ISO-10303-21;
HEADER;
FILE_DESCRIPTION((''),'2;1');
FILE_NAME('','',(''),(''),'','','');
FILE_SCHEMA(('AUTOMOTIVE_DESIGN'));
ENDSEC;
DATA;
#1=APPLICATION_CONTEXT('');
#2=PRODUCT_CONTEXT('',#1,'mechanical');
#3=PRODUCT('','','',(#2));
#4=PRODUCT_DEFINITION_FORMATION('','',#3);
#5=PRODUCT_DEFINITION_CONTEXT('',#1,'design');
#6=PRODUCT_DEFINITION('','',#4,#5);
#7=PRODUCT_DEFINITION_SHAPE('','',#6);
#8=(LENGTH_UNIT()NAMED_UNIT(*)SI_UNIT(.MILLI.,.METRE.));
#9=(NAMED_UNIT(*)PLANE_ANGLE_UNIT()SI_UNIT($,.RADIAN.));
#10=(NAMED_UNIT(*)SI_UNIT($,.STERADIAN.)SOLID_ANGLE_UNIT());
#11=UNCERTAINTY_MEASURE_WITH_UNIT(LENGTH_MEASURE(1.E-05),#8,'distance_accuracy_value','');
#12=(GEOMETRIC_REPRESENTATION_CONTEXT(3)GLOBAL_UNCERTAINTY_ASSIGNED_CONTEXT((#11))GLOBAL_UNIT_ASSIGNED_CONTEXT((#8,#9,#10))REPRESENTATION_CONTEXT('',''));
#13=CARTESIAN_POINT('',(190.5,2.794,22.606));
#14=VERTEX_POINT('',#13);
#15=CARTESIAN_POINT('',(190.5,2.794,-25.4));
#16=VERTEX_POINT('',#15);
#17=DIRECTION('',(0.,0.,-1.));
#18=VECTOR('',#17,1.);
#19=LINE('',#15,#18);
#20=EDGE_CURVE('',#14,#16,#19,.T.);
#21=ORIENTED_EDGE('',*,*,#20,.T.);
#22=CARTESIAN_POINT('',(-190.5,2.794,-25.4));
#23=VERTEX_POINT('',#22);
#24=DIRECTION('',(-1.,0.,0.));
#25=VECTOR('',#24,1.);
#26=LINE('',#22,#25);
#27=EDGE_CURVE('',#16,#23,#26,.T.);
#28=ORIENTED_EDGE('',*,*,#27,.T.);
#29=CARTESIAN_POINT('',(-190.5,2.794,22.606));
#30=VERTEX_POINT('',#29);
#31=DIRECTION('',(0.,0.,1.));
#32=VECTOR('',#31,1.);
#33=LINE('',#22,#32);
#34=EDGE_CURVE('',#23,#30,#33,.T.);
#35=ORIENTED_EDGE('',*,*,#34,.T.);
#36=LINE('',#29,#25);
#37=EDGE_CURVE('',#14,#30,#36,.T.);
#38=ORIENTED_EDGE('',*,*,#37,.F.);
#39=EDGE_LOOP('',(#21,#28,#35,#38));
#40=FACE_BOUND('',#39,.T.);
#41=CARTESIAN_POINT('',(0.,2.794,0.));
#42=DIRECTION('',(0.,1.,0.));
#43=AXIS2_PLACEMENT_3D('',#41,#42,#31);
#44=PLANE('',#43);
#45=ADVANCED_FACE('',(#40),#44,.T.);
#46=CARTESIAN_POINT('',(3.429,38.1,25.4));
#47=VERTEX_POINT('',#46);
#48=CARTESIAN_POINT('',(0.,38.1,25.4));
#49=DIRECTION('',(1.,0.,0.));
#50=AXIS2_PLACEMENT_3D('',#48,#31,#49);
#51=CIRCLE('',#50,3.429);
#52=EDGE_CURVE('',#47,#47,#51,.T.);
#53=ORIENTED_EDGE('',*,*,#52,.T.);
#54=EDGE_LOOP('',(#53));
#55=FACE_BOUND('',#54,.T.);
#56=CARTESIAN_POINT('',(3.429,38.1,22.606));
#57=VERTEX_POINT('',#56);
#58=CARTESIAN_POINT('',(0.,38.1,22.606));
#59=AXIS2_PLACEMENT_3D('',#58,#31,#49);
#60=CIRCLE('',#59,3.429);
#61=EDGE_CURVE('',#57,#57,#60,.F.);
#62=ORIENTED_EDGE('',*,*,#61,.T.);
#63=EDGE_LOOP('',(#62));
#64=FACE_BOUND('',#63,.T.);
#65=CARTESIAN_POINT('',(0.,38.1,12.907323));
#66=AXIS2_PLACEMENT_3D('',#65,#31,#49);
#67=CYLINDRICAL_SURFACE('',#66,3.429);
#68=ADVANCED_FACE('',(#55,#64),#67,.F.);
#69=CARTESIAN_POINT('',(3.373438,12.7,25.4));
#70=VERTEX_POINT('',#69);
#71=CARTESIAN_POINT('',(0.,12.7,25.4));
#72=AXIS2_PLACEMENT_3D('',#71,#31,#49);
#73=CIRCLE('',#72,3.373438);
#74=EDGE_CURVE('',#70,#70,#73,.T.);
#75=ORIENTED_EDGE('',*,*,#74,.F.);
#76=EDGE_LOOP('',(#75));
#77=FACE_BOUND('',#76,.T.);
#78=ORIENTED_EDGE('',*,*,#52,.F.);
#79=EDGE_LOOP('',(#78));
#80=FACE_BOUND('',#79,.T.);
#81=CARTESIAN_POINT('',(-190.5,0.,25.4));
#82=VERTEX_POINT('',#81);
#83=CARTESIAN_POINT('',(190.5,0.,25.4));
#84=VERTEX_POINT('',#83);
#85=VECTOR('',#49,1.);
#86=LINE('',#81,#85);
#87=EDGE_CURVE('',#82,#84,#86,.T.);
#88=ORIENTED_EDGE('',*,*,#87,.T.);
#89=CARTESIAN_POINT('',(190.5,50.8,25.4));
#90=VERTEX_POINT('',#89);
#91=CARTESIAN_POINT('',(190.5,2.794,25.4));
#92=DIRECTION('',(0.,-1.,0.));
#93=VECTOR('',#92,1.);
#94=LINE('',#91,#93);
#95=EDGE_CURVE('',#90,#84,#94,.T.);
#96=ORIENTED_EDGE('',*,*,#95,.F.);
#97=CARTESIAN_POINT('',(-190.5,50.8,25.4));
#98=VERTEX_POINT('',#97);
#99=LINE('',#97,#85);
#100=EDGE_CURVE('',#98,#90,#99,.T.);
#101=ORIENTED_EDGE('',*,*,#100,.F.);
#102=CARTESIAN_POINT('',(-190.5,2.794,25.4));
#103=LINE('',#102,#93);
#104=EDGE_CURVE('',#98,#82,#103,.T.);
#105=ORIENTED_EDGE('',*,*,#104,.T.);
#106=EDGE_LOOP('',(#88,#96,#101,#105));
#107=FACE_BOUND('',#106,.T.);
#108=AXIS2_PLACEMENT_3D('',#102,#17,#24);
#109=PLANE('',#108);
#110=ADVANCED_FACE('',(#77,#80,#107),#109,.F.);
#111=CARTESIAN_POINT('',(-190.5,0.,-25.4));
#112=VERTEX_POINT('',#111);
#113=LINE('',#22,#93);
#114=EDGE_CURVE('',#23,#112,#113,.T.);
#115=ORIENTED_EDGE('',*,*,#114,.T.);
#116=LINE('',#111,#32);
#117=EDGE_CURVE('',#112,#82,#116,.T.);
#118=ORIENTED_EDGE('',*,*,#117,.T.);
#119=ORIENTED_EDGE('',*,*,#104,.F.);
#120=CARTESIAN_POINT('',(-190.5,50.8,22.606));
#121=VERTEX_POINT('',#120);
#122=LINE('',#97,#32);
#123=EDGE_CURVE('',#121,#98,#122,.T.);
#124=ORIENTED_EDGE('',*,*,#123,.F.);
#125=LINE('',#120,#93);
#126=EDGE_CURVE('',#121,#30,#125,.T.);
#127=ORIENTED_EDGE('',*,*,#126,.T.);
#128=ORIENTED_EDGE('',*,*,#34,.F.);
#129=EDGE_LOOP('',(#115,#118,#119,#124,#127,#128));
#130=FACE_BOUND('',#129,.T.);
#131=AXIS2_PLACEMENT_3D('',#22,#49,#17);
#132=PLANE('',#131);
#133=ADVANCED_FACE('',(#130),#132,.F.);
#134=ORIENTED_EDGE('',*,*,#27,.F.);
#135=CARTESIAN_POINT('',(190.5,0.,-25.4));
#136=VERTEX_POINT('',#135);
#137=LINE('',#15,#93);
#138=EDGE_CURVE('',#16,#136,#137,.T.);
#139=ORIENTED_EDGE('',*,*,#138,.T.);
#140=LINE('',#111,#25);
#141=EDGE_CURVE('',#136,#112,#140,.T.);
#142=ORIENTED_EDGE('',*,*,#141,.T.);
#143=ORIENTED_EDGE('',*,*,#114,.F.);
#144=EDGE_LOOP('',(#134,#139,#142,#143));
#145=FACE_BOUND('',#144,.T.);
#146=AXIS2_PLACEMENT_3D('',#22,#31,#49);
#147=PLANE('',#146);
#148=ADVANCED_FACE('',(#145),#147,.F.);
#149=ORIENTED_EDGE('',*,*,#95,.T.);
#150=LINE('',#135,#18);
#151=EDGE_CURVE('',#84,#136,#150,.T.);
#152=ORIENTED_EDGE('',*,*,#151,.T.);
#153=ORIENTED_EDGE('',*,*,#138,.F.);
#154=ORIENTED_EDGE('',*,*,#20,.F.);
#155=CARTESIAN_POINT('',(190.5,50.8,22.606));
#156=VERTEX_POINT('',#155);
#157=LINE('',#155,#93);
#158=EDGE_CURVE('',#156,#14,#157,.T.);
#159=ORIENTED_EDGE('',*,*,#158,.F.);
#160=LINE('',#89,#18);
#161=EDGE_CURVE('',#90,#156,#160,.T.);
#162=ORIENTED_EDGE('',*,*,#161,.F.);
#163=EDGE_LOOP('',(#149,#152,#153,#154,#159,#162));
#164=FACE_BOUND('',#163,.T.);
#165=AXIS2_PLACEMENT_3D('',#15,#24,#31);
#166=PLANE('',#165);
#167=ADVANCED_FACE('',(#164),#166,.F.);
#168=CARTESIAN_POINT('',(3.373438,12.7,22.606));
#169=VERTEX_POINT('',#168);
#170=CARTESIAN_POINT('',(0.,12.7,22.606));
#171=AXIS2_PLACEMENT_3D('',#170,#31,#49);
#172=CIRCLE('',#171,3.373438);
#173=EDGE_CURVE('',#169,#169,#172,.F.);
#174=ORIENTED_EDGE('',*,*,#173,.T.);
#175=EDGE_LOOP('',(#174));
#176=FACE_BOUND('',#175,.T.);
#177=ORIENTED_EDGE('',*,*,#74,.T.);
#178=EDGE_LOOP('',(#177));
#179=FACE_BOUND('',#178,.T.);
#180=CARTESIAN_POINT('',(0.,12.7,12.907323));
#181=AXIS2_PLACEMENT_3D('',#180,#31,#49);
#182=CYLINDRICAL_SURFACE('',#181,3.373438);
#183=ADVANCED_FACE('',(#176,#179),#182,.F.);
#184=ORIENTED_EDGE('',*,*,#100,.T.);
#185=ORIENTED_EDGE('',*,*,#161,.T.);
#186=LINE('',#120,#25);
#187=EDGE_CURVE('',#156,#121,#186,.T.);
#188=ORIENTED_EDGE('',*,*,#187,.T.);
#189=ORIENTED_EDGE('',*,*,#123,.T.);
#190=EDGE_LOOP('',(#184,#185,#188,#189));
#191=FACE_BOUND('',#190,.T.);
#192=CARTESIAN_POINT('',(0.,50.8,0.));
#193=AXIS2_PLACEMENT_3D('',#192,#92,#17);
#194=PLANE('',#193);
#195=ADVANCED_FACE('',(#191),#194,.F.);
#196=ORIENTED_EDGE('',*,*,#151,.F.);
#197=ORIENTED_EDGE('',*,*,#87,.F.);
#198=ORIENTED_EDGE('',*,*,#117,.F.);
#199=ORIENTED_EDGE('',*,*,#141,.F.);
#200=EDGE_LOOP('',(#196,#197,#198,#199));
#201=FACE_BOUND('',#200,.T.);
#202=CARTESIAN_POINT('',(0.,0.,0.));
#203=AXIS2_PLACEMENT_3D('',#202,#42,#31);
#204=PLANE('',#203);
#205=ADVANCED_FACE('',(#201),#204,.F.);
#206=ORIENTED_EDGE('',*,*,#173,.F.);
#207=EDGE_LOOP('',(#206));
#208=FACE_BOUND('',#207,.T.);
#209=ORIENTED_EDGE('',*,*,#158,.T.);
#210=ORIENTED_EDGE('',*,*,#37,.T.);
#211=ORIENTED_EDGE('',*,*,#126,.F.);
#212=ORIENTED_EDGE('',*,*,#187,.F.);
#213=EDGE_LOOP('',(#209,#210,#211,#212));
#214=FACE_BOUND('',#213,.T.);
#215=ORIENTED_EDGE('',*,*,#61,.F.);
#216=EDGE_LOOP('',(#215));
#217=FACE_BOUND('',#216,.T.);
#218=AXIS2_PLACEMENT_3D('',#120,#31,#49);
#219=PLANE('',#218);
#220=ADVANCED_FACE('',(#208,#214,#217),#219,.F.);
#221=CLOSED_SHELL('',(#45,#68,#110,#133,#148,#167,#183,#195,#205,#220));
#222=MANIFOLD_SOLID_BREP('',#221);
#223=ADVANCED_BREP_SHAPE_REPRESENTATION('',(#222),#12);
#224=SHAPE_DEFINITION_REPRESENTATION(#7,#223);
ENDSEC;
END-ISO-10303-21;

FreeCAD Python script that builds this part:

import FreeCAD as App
import Part
import Sketcher
from FreeCAD import Vector
Q = App.Units.Quantity


def add_polygon(sketch, points):
    """Adds a closed chain of lines whose ends are joined by coincident constraints."""
    first, n = sketch.GeometryCount, len(points)
    for a, b in zip(points, points[1:] + points[:1]):
        sketch.addGeometry(Part.LineSegment(App.Vector(*a, 0), App.Vector(*b, 0)), False)
    for i in range(n):
        sketch.addConstraint(Sketcher.Constraint("Coincident", first + i, 2, first + (i + 1) % n, 1))

doc = App.newDocument("Part")
body = doc.addObject("PartDesign::Body", "Body")

# Sketch on XZ plane
sketch1 = body.newObject("Sketcher::SketchObject", "Sketch")
sketch1.AttachmentSupport = (doc.getObject("XZ_Plane"), [""])
sketch1.MapMode = "FlatFace"
add_polygon(sketch1, [(-190, -25), (-190, 25), (190, 25), (190, -25)])  # lines 0-3
sketch1.addConstraint([
    Sketcher.Constraint("Vertical", 0),
    Sketcher.Constraint("Horizontal", 1),
    Sketcher.Constraint("Vertical", 2),
    Sketcher.Constraint("Horizontal", 3),
    Sketcher.Constraint("Symmetric", 0, 2, 2, 2, -1, 1),
    Sketcher.Constraint("DistanceX", 1, 1, 1, 2, Q("15 in")),
    Sketcher.Constraint("DistanceY", 0, 1, 0, 2, Q("2 in")),
])
pad1 = body.newObject("PartDesign::Pad", "Pad")
pad1.Profile = sketch1
pad1.Length = Q("0.11 in")
pad1.Reversed = True

# Sketch on XZ plane
sketch2 = body.newObject("Sketcher::SketchObject", "Sketch001")
sketch2.AttachmentSupport = (doc.getObject("XZ_Plane"), [""])
sketch2.MapMode = "FlatFace"
sketch2.AttachmentOffset = App.Placement(Vector(0, 0, -0.11 * 25.4), App.Rotation())
add_polygon(sketch2, [(-190.5, 22.6), (-190.5, 25.4), (190.5, 25.4), (190.5, 22.6)])  # lines 0-3
sketch2.addConstraint([
    Sketcher.Constraint("Vertical", 0),
    Sketcher.Constraint("Horizontal", 1),
    Sketcher.Constraint("Vertical", 2),
    Sketcher.Constraint("Horizontal", 3),
    Sketcher.Constraint("DistanceX", 1, 1, 1, 2, Q("15 in")),
    Sketcher.Constraint("DistanceY", -1, 1, 0, 2, Q("1 in")),
    Sketcher.Constraint("DistanceY", 0, 1, 0, 2, Q("0.11 in")),
    Sketcher.Constraint("DistanceX", 0, 2, -1, 1, Q("7.5 in")),
])
pad2 = body.newObject("PartDesign::Pad", "Pad001")
pad2.Profile = sketch2
pad2.Length = Q("1.89 in")
pad2.Reversed = True

# Sketch on XY plane
sketch3 = body.newObject("Sketcher::SketchObject", "Sketch002")
sketch3.AttachmentSupport = (doc.getObject("XY_Plane"), [""])
sketch3.MapMode = "FlatFace"
sketch3.AttachmentOffset = App.Placement(Vector(0, 0, 1 * 25.4), App.Rotation())
sketch3.addGeometry([
    Part.Circle(Vector(0, 38.1, 0), Vector(0, 0, 1), 3.4),
    Part.Circle(Vector(0, 12.7, 0), Vector(0, 0, 1), 3.4),
], False)
sketch3.addConstraint([
    Sketcher.Constraint("PointOnObject", 0, 3, -2),
    Sketcher.Constraint("PointOnObject", 1, 3, -2),
    Sketcher.Constraint("Diameter", 0, Q("0.27 in")),
    Sketcher.Constraint("Diameter", 1, Q("0.265625 in")),
    Sketcher.Constraint("DistanceY", 1, 3, 0, 3, Q("1 in")),
    Sketcher.Constraint("DistanceY", -1, 1, 0, 3, Q("1.5 in")),
])
pocket1 = body.newObject("PartDesign::Pocket", "Pocket")
pocket1.Profile = sketch3
pocket1.Length = Q("0.11 in")

doc.recompute()
